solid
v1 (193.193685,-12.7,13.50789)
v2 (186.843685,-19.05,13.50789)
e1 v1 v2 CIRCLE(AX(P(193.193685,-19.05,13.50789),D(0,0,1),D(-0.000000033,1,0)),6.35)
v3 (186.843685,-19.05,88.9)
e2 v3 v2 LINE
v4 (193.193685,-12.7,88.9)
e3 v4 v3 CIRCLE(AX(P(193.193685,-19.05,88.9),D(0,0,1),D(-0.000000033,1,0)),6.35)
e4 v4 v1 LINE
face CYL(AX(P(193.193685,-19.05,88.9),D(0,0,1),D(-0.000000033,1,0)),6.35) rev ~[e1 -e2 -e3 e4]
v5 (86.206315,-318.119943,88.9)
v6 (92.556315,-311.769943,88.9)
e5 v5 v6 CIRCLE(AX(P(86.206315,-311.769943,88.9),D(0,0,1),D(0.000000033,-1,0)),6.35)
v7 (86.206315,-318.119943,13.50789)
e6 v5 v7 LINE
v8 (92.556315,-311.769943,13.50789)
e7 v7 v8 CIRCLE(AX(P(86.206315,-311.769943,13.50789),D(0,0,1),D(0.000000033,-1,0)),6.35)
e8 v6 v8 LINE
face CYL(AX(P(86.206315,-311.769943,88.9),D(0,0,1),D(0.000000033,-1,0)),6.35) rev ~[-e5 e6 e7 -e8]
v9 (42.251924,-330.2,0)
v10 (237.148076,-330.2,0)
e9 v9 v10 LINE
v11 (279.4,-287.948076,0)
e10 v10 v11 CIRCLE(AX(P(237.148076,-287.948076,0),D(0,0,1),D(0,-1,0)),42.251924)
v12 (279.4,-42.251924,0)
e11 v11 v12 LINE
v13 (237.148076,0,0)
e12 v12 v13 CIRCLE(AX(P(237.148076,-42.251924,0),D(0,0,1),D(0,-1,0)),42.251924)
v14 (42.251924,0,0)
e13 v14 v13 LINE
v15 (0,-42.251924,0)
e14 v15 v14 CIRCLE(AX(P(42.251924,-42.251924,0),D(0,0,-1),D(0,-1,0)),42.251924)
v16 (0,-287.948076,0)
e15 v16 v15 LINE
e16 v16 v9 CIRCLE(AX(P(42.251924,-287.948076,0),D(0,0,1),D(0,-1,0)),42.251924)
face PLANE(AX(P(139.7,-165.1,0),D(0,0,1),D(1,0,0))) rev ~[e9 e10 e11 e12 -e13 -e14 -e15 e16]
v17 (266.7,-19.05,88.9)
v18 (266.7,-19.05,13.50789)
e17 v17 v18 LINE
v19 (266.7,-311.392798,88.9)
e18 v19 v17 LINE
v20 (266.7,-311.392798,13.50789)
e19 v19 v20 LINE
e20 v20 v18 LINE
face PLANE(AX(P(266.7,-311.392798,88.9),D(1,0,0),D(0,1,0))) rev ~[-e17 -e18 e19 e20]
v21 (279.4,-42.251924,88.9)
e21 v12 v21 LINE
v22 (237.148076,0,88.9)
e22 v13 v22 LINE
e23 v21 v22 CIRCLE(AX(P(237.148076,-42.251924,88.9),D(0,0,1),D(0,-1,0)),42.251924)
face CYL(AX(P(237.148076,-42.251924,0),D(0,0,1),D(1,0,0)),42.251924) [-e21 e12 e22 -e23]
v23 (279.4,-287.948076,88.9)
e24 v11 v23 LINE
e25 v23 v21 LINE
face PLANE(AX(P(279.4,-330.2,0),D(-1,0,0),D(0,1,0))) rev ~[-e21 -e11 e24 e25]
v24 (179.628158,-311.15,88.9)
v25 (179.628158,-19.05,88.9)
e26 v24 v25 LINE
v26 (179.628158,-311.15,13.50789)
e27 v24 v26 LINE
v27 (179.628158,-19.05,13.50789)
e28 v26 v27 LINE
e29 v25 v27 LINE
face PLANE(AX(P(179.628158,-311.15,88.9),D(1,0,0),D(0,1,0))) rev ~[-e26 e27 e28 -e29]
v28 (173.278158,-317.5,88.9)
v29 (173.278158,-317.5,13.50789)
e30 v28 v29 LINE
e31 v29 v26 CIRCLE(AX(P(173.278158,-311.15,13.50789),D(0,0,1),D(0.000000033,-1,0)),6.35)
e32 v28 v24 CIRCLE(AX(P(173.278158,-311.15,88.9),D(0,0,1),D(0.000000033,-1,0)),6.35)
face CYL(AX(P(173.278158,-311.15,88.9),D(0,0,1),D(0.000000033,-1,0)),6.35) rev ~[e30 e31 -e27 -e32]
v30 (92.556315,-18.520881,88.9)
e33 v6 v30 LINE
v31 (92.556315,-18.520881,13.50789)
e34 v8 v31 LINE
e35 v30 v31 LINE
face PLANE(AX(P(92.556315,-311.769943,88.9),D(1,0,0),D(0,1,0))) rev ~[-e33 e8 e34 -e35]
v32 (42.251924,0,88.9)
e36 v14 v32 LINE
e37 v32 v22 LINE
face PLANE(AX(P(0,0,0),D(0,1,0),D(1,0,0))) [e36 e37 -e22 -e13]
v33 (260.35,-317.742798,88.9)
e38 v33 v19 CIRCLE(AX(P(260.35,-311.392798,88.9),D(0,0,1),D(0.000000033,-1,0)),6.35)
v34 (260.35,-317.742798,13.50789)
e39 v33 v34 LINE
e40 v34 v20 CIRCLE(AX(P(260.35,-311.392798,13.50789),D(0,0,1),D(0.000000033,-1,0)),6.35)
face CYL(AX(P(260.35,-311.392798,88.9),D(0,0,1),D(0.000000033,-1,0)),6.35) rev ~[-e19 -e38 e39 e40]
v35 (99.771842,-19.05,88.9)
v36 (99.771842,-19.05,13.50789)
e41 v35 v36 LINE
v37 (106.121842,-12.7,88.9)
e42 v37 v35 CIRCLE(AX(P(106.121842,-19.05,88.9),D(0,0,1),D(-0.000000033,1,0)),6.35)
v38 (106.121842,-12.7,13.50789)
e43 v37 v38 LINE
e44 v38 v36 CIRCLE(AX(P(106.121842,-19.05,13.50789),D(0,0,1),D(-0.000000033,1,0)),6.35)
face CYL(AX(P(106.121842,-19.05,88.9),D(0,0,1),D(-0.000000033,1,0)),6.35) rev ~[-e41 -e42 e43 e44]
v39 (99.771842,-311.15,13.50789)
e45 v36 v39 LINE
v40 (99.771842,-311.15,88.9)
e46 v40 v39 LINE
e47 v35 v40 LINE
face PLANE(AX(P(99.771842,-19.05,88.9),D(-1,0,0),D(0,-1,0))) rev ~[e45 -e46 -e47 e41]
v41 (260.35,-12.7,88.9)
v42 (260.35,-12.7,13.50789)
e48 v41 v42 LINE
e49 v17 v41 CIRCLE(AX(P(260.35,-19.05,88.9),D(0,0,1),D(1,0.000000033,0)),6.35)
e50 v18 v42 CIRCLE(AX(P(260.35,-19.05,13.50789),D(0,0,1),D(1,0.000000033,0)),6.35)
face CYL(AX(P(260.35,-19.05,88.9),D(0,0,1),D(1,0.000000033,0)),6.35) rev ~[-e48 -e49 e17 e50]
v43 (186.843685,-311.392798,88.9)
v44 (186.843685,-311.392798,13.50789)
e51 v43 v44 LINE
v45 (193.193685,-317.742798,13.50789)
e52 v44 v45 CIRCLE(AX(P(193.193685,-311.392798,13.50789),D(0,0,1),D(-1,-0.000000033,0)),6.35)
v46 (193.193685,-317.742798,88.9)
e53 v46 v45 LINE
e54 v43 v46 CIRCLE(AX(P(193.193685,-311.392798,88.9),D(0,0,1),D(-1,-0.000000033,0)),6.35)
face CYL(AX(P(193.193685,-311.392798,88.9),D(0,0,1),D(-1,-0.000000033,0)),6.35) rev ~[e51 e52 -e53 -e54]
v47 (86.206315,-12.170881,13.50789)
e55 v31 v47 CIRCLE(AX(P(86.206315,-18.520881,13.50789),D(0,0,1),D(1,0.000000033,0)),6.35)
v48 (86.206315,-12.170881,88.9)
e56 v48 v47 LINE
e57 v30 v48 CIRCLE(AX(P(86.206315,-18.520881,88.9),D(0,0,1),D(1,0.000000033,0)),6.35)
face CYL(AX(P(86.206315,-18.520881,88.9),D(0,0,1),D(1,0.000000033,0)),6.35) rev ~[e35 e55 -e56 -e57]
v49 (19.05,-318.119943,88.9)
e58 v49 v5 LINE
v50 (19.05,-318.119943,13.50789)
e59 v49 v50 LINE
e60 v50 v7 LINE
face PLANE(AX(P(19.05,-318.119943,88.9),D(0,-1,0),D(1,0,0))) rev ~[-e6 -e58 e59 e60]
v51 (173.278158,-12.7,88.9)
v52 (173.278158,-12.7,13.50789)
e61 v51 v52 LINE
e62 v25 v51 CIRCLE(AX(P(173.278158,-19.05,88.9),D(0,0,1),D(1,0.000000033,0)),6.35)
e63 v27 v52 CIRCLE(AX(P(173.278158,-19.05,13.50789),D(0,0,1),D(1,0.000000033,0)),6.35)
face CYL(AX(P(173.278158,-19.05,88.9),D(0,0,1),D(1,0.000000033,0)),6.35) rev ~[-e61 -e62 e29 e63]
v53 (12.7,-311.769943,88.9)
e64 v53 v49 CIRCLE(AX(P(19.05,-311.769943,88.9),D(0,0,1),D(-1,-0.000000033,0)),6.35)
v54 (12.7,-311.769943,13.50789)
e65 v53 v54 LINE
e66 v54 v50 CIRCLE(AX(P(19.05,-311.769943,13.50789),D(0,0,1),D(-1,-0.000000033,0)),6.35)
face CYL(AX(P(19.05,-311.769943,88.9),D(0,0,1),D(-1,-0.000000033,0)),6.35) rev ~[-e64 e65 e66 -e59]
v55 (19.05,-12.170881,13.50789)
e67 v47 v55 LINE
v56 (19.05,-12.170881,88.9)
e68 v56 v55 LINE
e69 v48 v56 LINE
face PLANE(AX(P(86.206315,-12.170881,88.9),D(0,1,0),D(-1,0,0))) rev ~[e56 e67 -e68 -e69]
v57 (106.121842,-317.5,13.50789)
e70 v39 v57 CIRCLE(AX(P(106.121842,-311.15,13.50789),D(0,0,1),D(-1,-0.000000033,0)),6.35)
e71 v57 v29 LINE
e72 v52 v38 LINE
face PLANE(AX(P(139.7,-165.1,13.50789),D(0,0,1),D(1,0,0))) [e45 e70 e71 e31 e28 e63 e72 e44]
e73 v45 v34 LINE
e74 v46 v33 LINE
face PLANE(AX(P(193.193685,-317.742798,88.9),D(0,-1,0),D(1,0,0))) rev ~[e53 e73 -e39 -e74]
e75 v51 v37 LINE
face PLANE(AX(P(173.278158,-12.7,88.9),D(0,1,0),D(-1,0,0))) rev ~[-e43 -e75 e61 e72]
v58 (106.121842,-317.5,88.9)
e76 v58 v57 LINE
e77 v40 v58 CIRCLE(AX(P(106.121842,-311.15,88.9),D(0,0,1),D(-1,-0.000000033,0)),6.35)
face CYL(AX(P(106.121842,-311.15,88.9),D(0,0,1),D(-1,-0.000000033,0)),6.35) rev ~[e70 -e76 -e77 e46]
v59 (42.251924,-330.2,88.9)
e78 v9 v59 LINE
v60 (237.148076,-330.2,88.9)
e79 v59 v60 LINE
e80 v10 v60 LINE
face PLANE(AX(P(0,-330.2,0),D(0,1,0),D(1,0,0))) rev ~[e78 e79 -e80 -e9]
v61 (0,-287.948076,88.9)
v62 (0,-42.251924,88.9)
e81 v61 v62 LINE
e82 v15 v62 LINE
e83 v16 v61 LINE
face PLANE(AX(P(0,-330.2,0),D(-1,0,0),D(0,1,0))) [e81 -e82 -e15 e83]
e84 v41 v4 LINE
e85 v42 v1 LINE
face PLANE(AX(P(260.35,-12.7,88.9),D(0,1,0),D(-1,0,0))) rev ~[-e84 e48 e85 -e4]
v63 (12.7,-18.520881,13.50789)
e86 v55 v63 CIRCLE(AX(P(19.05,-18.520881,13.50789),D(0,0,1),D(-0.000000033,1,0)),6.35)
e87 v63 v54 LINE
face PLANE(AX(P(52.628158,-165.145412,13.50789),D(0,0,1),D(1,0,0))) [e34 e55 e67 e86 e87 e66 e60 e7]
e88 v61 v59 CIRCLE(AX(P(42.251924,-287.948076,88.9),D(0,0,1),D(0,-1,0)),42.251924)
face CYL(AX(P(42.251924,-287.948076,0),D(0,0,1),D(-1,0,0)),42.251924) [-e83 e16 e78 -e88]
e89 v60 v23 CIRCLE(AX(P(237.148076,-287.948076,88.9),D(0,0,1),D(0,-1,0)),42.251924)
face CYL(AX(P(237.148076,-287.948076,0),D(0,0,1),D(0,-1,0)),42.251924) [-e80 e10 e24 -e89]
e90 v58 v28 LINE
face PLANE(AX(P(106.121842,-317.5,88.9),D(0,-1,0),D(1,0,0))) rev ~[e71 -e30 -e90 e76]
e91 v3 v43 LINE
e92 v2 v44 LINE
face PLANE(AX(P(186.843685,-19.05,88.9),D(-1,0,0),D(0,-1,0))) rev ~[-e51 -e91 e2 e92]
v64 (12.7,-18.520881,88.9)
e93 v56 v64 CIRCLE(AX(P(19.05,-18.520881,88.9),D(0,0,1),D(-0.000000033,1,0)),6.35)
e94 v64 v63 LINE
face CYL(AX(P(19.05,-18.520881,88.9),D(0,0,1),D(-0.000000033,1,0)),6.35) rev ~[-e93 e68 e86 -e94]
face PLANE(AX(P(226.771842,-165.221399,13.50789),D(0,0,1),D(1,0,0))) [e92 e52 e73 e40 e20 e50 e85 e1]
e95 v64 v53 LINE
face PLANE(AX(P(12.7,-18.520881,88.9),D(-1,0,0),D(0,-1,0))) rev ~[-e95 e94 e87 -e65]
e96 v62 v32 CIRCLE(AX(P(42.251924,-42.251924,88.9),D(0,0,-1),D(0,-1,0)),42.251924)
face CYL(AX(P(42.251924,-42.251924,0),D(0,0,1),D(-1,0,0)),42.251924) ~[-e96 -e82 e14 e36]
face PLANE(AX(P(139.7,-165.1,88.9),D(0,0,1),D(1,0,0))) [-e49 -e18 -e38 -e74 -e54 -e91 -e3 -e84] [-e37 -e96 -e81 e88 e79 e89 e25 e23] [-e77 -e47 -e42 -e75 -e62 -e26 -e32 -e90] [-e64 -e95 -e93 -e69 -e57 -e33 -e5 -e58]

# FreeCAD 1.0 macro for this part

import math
import FreeCAD as App
import Part
import Sketcher

V = App.Vector
Q = App.Units.Quantity


def edges_at(feature, points):
    """Names of the edges that pass closest to the given points."""
    edges = feature.Shape.Edges
    near = lambda p: min(range(len(edges)), key=lambda i: edges[i].distToShape(Part.Vertex(*p))[0])
    return sorted({f"Edge{near(p) + 1}" for p in points})


def add_polygon(sketch, points):
    """Adds a closed chain of lines whose ends are joined by coincident constraints."""
    first, n = sketch.GeometryCount, len(points)
    for a, b in zip(points, points[1:] + points[:1]):
        sketch.addGeometry(Part.LineSegment(App.Vector(*a, 0), App.Vector(*b, 0)), False)
    for i in range(n):
        sketch.addConstraint(Sketcher.Constraint("Coincident", first + i, 2, first + (i + 1) % n, 1))

doc = App.newDocument("Part")
body = doc.addObject("PartDesign::Body", "Body")

# Sketch on XY plane
sketch1 = body.newObject("Sketcher::SketchObject", "Sketch")
sketch1.AttachmentSupport = (doc.getObject("XY_Plane"), [""])
sketch1.MapMode = "FlatFace"
add_polygon(sketch1, [(0, 0), (0, -330.2), (279.4, -330.2), (279.4, 0)])  # lines 0-3
sketch1.addConstraint([
    Sketcher.Constraint("Vertical", 0),
    Sketcher.Constraint("Horizontal", 1),
    Sketcher.Constraint("Vertical", 2),
    Sketcher.Constraint("Horizontal", 3),
    Sketcher.Constraint("Coincident", 3, 2, -1, 1),
    Sketcher.Constraint("DistanceX", 1, 1, 1, 2, Q("11 in")),
    Sketcher.Constraint("DistanceY", 0, 2, 0, 1, Q("13 in")),
])
pad1 = body.newObject("PartDesign::Pad", "Pad")
pad1.Profile = sketch1
pad1.Length = Q("3.5 in")
doc.recompute()

fillet = body.newObject("PartDesign::Fillet", "Fillet")
fillet.Base = (pad1, edges_at(pad1, [
    (0, -330.2, 44.45),
    (279.4, -330.2, 44.45),
    (279.4, 0, 44.45),
    (0, 0, 44.45),
]))
fillet.Radius = 42.251924

# Sketch on XY plane
sketch2 = body.newObject("Sketcher::SketchObject", "Sketch001")
sketch2.AttachmentSupport = (doc.getObject("XY_Plane"), [""])
sketch2.MapMode = "FlatFace"
sketch2.AttachmentOffset = App.Placement(V(0, 0, 3.5 * 25.4), App.Rotation())
sketch2.addGeometry([
    Part.ArcOfCircle(Part.Circle(V(106.121842, -311.15, 0), V(0, 0, 1), 6.35), math.radians(-179.999998), math.radians(-90.000002)),  # 0
    Part.LineSegment(V(106.121842, -317.5, 0), V(173.278158, -317.5, 0)),  # 1
    Part.ArcOfCircle(Part.Circle(V(173.278158, -311.15, 0), V(0, 0, 1), 6.35), math.radians(-89.999998), math.radians(-0.000002)),  # 2
    Part.LineSegment(V(179.628158, -311.15, 0), V(179.628158, -19.05, 0)),  # 3
    Part.ArcOfCircle(Part.Circle(V(173.278158, -19.05, 0), V(0, 0, 1), 6.35), math.radians(0.000002), math.radians(89.999998)),  # 4
    Part.LineSegment(V(173.278158, -12.7, 0), V(106.121842, -12.7, 0)),  # 5
    Part.ArcOfCircle(Part.Circle(V(106.121842, -19.05, 0), V(0, 0, 1), 6.35), math.radians(90.000002), math.radians(179.999998)),  # 6
    Part.LineSegment(V(99.771842, -19.05, 0), V(99.771842, -311.15, 0)),  # 7
    Part.LineSegment(V(260.35, -12.7, 0), V(193.193685, -12.7, 0)),  # 8
    Part.ArcOfCircle(Part.Circle(V(193.193685, -19.05, 0), V(0, 0, 1), 6.35), math.radians(90.000002), math.radians(179.999998)),  # 9
    Part.LineSegment(V(186.843685, -19.05, 0), V(186.843685, -311.392798, 0)),  # 10
    Part.ArcOfCircle(Part.Circle(V(193.193685, -311.392798, 0), V(0, 0, 1), 6.35), math.radians(-179.999998), math.radians(-90.000002)),  # 11
    Part.LineSegment(V(193.193685, -317.742798, 0), V(260.35, -317.742798, 0)),  # 12
    Part.ArcOfCircle(Part.Circle(V(260.35, -311.392798, 0), V(0, 0, 1), 6.35), math.radians(-89.999998), math.radians(-0.000002)),  # 13
    Part.LineSegment(V(266.7, -311.392798, 0), V(266.7, -19.05, 0)),  # 14
    Part.ArcOfCircle(Part.Circle(V(260.35, -19.05, 0), V(0, 0, 1), 6.35), math.radians(0.000002), math.radians(89.999998)),  # 15
    Part.LineSegment(V(86.206315, -12.170881, 0), V(19.05, -12.170881, 0)),  # 16
    Part.ArcOfCircle(Part.Circle(V(19.05, -18.520881, 0), V(0, 0, 1), 6.35), math.radians(90.000002), math.radians(179.999998)),  # 17
    Part.LineSegment(V(12.7, -18.520881, 0), V(12.7, -311.769943, 0)),  # 18
    Part.ArcOfCircle(Part.Circle(V(19.05, -311.769943, 0), V(0, 0, 1), 6.35), math.radians(-179.999998), math.radians(-90.000002)),  # 19
    Part.LineSegment(V(19.05, -318.119943, 0), V(86.206315, -318.119943, 0)),  # 20
    Part.ArcOfCircle(Part.Circle(V(86.206315, -311.769943, 0), V(0, 0, 1), 6.35), math.radians(-89.999998), math.radians(-0.000002)),  # 21
    Part.LineSegment(V(92.556315, -311.769943, 0), V(92.556315, -18.520881, 0)),  # 22
    Part.ArcOfCircle(Part.Circle(V(86.206315, -18.520881, 0), V(0, 0, 1), 6.35), math.radians(0.000002), math.radians(89.999998)),  # 23
], False)
sketch2.addConstraint([
    Sketcher.Constraint("Tangent", 0, 2, 1, 1),
    Sketcher.Constraint("Tangent", 1, 2, 2, 1),
    Sketcher.Constraint("Tangent", 2, 2, 3, 1),
    Sketcher.Constraint("Tangent", 3, 2, 4, 1),
    Sketcher.Constraint("Tangent", 4, 2, 5, 1),
    Sketcher.Constraint("Tangent", 5, 2, 6, 1),
    Sketcher.Constraint("Tangent", 6, 2, 7, 1),
    Sketcher.Constraint("Tangent", 7, 2, 0, 1),
    Sketcher.Constraint("Tangent", 8, 2, 9, 1),
    Sketcher.Constraint("Tangent", 9, 2, 10, 1),
    Sketcher.Constraint("Tangent", 10, 2, 11, 1),
    Sketcher.Constraint("Tangent", 11, 2, 12, 1),
    Sketcher.Constraint("Tangent", 12, 2, 13, 1),
    Sketcher.Constraint("Tangent", 13, 2, 14, 1),
    Sketcher.Constraint("Tangent", 14, 2, 15, 1),
    Sketcher.Constraint("Tangent", 15, 2, 8, 1),
    Sketcher.Constraint("Tangent", 16, 2, 17, 1),
    Sketcher.Constraint("Tangent", 17, 2, 18, 1),
    Sketcher.Constraint("Tangent", 18, 2, 19, 1),
    Sketcher.Constraint("Tangent", 19, 2, 20, 1),
    Sketcher.Constraint("Tangent", 20, 2, 21, 1),
    Sketcher.Constraint("Tangent", 21, 2, 22, 1),
    Sketcher.Constraint("Tangent", 22, 2, 23, 1),
    Sketcher.Constraint("Tangent", 23, 2, 16, 1),
    Sketcher.Constraint("Horizontal", 1),
    Sketcher.Constraint("Vertical", 3),
    Sketcher.Constraint("Horizontal", 5),
    Sketcher.Constraint("Vertical", 7),
    Sketcher.Constraint("Horizontal", 8),
    Sketcher.Constraint("Vertical", 10),
    Sketcher.Constraint("Horizontal", 12),
    Sketcher.Constraint("Vertical", 14),
    Sketcher.Constraint("Horizontal", 16),
    Sketcher.Constraint("Vertical", 18),
    Sketcher.Constraint("Horizontal", 20),
    Sketcher.Constraint("Vertical", 22),
    Sketcher.Constraint("Equal", 0, 2),
    Sketcher.Constraint("Equal", 2, 4),
    Sketcher.Constraint("Equal", 4, 6),
    Sketcher.Constraint("Equal", 6, 9),
    Sketcher.Constraint("Equal", 9, 11),
    Sketcher.Constraint("Equal", 11, 13),
    Sketcher.Constraint("Equal", 13, 15),
    Sketcher.Constraint("Equal", 15, 17),
    Sketcher.Constraint("Equal", 17, 19),
    Sketcher.Constraint("Equal", 19, 21),
    Sketcher.Constraint("Equal", 21, 23),
    Sketcher.Constraint("Horizontal", 6, 3, 9, 3),
    Sketcher.Constraint("Equal", 5, 8),
    Sketcher.Constraint("Equal", 12, 16),
    Sketcher.Constraint("Radius", 0, Q("0.25 in")),
    Sketcher.Constraint("DistanceY", 3, 1, 3, 2, Q("11.5 in")),
    Sketcher.Constraint("DistanceY", 0, 2, -1, 1, Q("12.5 in")),
    Sketcher.Constraint("DistanceX", -1, 1, 13, 2, Q("10.5 in")),
    Sketcher.Constraint("DistanceX", -1, 1, 17, 2, Q("0.5 in")),
    Sketcher.Constraint("DistanceY", 10, 2, 10, 1, Q("292.342798 mm")),
    Sketcher.Constraint("DistanceX", 1, 1, 1, 2, Q("67.156316 mm")),
    Sketcher.Constraint("DistanceY", 18, 2, 18, 1, Q("293.249062 mm")),
    Sketcher.Constraint("DistanceY", 17, 3, -1, 1, Q("18.520881 mm")),
    Sketcher.Constraint("DistanceX", -1, 1, 0, 2, Q("106.121842 mm")),
])
pocket1 = body.newObject("PartDesign::Pocket", "Pocket")
pocket1.Profile = sketch2
pocket1.Length = 75.39211

doc.recompute()
